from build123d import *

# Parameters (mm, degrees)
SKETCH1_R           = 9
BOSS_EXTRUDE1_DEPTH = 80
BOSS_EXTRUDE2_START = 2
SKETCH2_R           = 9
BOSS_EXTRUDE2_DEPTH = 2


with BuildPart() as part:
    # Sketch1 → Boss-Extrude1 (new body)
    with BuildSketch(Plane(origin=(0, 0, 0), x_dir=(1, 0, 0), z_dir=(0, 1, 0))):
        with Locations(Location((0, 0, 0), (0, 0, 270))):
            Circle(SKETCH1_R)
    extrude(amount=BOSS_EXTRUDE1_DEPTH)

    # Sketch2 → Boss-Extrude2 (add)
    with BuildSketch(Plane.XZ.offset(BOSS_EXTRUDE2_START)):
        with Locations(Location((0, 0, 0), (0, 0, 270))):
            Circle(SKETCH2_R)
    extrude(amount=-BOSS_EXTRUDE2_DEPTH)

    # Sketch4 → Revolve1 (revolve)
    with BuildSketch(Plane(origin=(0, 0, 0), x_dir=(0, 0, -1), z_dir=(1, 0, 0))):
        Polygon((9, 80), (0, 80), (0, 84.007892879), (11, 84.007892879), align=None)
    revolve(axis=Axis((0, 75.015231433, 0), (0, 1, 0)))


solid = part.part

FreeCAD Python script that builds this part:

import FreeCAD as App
import Part
import Sketcher
from FreeCAD import Vector
Q = App.Units.Quantity


def add_polygon(sketch, points):
    """Adds a closed chain of lines whose ends are joined by coincident constraints."""
    first, n = sketch.GeometryCount, len(points)
    for a, b in zip(points, points[1:] + points[:1]):
        sketch.addGeometry(Part.LineSegment(App.Vector(*a, 0), App.Vector(*b, 0)), False)
    for i in range(n):
        sketch.addConstraint(Sketcher.Constraint("Coincident", first + i, 2, first + (i + 1) % n, 1))

doc = App.newDocument("Part")
body = doc.addObject("PartDesign::Body", "Body")

sketch1 = body.newObject("Sketcher::SketchObject", "Sketch")
sketch1.AttachmentSupport = (doc.getObject("XZ_Plane"), [""])
sketch1.MapMode = "FlatFace"
sketch1.addGeometry(Part.Circle(Vector(0, 0, 0), Vector(0, 0, 1), 9), False)
sketch1.addConstraint([
    Sketcher.Constraint("Coincident", 0, 3, -1, 1),
    Sketcher.Constraint("Diameter", 0, Q("18 mm")),
])
pad1 = body.newObject("PartDesign::Pad", "Pad")
pad1.Profile = sketch1
pad1.Length = 80
pad1.Reversed = True

sketch2 = body.newObject("Sketcher::SketchObject", "Sketch001")
sketch2.AttachmentSupport = (doc.getObject("XZ_Plane"), [""])
sketch2.MapMode = "FlatFace"
sketch2.AttachmentOffset = App.Placement(Vector(0, 0, 2), App.Rotation())
sketch2.addGeometry(Part.Circle(Vector(0, 0, 0), Vector(0, 0, 1), 9), False)
sketch2.addConstraint([
    Sketcher.Constraint("Coincident", 0, 3, -1, 1),
    Sketcher.Constraint("Diameter", 0, Q("18 mm")),
])
pad2 = body.newObject("PartDesign::Pad", "Pad001")
pad2.Profile = sketch2
pad2.Length = 2
pad2.Reversed = True

sketch3 = body.newObject("Sketcher::SketchObject", "Sketch002")
sketch3.AttachmentSupport = (doc.getObject("YZ_Plane"), [""])
sketch3.MapMode = "FlatFace"
add_polygon(sketch3, [(80, 0), (80, -9), (84.007893, -11), (84.007893, 0)])
sketch3.addConstraint([
    Sketcher.Constraint("Vertical", 0),
    Sketcher.Constraint("Vertical", 2),
    Sketcher.Constraint("Horizontal", 3),
    Sketcher.Constraint("PointOnObject", 2, 2, -1),
    Sketcher.Constraint("DistanceY", 0, 2, 0, 1, Q("9 mm")),
    Sketcher.Constraint("DistanceY", 2, 1, 2, 2, Q("11 mm")),
    Sketcher.Constraint("DistanceX", -1, 1, 0, 2, Q("80 mm")),
    Sketcher.Constraint("DistanceX", 3, 2, 3, 1, Q("4.007893 mm")),
])
revolution = body.newObject("PartDesign::Revolution", "Revolution")
revolution.Profile = sketch3
revolution.ReferenceAxis = (sketch3, ["H_Axis"])
revolution.Angle = 360

doc.recompute()
